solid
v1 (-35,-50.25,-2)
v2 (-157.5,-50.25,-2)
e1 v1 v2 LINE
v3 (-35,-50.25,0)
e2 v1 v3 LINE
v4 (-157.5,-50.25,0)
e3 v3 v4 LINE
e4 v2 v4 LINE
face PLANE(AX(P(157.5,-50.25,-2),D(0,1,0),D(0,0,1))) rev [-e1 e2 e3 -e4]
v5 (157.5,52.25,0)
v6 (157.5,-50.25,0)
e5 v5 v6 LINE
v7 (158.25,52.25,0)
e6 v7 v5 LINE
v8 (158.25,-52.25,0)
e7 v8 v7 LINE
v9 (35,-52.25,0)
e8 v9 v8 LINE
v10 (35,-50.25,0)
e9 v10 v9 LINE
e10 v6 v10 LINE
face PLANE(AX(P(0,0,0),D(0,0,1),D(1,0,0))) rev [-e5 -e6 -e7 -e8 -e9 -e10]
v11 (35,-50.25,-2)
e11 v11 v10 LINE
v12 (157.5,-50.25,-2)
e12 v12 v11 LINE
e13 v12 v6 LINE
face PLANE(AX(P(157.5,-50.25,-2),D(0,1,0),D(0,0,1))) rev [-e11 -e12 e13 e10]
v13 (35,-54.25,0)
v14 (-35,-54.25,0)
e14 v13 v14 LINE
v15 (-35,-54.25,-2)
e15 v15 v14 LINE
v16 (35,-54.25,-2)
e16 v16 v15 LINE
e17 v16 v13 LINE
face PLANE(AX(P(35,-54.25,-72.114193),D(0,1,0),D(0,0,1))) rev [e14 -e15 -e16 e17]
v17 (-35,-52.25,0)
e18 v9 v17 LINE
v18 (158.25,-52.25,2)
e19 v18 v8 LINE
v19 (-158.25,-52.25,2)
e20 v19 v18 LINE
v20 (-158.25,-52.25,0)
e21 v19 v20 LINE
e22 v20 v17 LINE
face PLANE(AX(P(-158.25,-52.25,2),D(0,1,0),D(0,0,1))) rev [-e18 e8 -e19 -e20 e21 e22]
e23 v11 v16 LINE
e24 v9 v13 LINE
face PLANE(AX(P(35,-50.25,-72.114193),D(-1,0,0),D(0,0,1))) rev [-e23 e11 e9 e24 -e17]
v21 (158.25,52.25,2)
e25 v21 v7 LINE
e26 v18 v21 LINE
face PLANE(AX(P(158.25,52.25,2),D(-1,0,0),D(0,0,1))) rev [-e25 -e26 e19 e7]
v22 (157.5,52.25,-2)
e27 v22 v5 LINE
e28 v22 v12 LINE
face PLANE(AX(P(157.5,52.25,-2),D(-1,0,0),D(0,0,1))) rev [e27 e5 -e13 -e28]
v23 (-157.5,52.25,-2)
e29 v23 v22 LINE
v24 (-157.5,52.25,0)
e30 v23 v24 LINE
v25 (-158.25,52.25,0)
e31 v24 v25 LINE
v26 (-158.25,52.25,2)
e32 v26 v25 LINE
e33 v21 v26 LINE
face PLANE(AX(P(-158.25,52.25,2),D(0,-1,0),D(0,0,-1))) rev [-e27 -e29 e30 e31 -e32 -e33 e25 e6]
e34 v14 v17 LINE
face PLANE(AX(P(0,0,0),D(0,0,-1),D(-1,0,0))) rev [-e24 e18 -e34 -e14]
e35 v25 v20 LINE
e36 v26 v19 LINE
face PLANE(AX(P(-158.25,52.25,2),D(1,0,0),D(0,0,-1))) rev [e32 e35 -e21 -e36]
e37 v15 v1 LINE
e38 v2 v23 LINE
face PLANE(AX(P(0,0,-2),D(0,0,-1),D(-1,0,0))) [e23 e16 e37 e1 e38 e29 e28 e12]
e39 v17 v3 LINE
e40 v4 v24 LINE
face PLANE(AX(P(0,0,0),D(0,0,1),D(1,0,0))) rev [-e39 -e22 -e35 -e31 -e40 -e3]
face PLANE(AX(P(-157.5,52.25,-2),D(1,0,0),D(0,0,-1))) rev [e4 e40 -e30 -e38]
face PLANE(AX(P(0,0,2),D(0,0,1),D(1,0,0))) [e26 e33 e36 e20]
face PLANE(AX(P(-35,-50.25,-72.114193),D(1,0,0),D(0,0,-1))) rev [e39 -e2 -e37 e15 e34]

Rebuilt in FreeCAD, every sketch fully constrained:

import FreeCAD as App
import Part
import Sketcher
from FreeCAD import Vector

doc = App.newDocument("Part")
body = doc.addObject("PartDesign::Body", "Body")

# Sketch on XY plane
sketch1 = body.newObject("Sketcher::SketchObject", "Sketch")
sketch1.AttachmentSupport = (doc.getObject("XY_Plane"), [""])
sketch1.MapMode = "FlatFace"
sketch1.addGeometry(Part.LineSegment(Vector(-158, 52, 0), Vector(-158, -52, 0)), False)
sketch1.addGeometry(Part.LineSegment(Vector(-158, -52, 0), Vector(158, -52, 0)), False)
sketch1.addGeometry(Part.LineSegment(Vector(158, -52, 0), Vector(158, 52, 0)), False)
sketch1.addGeometry(Part.LineSegment(Vector(158, 52, 0), Vector(-158, 52, 0)), False)
sketch1.addConstraint(Sketcher.Constraint("Coincident", 0, 2, 1, 1))
sketch1.addConstraint(Sketcher.Constraint("Coincident", 1, 2, 2, 1))
sketch1.addConstraint(Sketcher.Constraint("Coincident", 2, 2, 3, 1))
sketch1.addConstraint(Sketcher.Constraint("Coincident", 3, 2, 0, 1))
sketch1.addConstraint(Sketcher.Constraint("Vertical", 0))
sketch1.addConstraint(Sketcher.Constraint("Horizontal", 1))
sketch1.addConstraint(Sketcher.Constraint("Vertical", 2))
sketch1.addConstraint(Sketcher.Constraint("Horizontal", 3))
sketch1.addConstraint(Sketcher.Constraint("Symmetric", 0, 2, 2, 2, -1, 1))
sketch1.addConstraint(Sketcher.Constraint("DistanceX", 1, 1, 1, 2, 316.5))
sketch1.addConstraint(Sketcher.Constraint("DistanceY", 0, 2, 0, 1, 104.5))
pad1 = body.newObject("PartDesign::Pad", "Pad")
pad1.Profile = sketch1
pad1.Length = 2

# Sketch on XY plane
sketch2 = body.newObject("Sketcher::SketchObject", "Sketch001")
sketch2.AttachmentSupport = (doc.getObject("XY_Plane"), [""])
sketch2.MapMode = "FlatFace"
sketch2.addGeometry(Part.LineSegment(Vector(158, 52, 0), Vector(158, -50, 0)), False)
sketch2.addGeometry(Part.LineSegment(Vector(158, -50, 0), Vector(-158, -50, 0)), False)
sketch2.addGeometry(Part.LineSegment(Vector(-158, -50, 0), Vector(-158, 52, 0)), False)
sketch2.addGeometry(Part.LineSegment(Vector(-158, 52, 0), Vector(158, 52, 0)), False)
sketch2.addConstraint(Sketcher.Constraint("Coincident", 0, 2, 1, 1))
sketch2.addConstraint(Sketcher.Constraint("Coincident", 1, 2, 2, 1))
sketch2.addConstraint(Sketcher.Constraint("Coincident", 2, 2, 3, 1))
sketch2.addConstraint(Sketcher.Constraint("Coincident", 3, 2, 0, 1))
sketch2.addConstraint(Sketcher.Constraint("Vertical", 0))
sketch2.addConstraint(Sketcher.Constraint("Horizontal", 1))
sketch2.addConstraint(Sketcher.Constraint("Vertical", 2))
sketch2.addConstraint(Sketcher.Constraint("Horizontal", 3))
sketch2.addConstraint(Sketcher.Constraint("DistanceX", 1, 2, 1, 1, 315.0))
sketch2.addConstraint(Sketcher.Constraint("DistanceY", 0, 2, 0, 1, 102.5))
sketch2.addConstraint(Sketcher.Constraint("DistanceX", -1, 1, 0, 2, 157.5))
sketch2.addConstraint(Sketcher.Constraint("DistanceY", 0, 2, -1, 1, 50.25))
pad2 = body.newObject("PartDesign::Pad", "Pad001")
pad2.Profile = sketch2
pad2.Length = 2
pad2.Reversed = True

# Sketch on XY plane
sketch3 = body.newObject("Sketcher::SketchObject", "Sketch002")
sketch3.AttachmentSupport = (doc.getObject("XY_Plane"), [""])
sketch3.MapMode = "FlatFace"
sketch3.addGeometry(Part.LineSegment(Vector(35, -50.2, 0), Vector(35, -54.2, 0)), False)
sketch3.addGeometry(Part.LineSegment(Vector(35, -54.2, 0), Vector(-35, -54.2, 0)), False)
sketch3.addGeometry(Part.LineSegment(Vector(-35, -54.2, 0), Vector(-35, -50.2, 0)), False)
sketch3.addGeometry(Part.LineSegment(Vector(-35, -50.2, 0), Vector(35, -50.2, 0)), False)
sketch3.addConstraint(Sketcher.Constraint("Coincident", 0, 2, 1, 1))
sketch3.addConstraint(Sketcher.Constraint("Coincident", 1, 2, 2, 1))
sketch3.addConstraint(Sketcher.Constraint("Coincident", 2, 2, 3, 1))
sketch3.addConstraint(Sketcher.Constraint("Coincident", 3, 2, 0, 1))
sketch3.addConstraint(Sketcher.Constraint("Vertical", 0))
sketch3.addConstraint(Sketcher.Constraint("Horizontal", 1))
sketch3.addConstraint(Sketcher.Constraint("Vertical", 2))
sketch3.addConstraint(Sketcher.Constraint("Horizontal", 3))
sketch3.addConstraint(Sketcher.Constraint("DistanceX", 1, 2, 1, 1, 70.0))
sketch3.addConstraint(Sketcher.Constraint("DistanceY", 0, 2, 0, 1, 4.0))
sketch3.addConstraint(Sketcher.Constraint("DistanceX", -1, 1, 0, 2, 35.0))
sketch3.addConstraint(Sketcher.Constraint("DistanceY", 0, 2, -1, 1, 54.25))
pad3 = body.newObject("PartDesign::Pad", "Pad002")
pad3.Profile = sketch3
pad3.Length = 2
pad3.Reversed = True

doc.recompute()
